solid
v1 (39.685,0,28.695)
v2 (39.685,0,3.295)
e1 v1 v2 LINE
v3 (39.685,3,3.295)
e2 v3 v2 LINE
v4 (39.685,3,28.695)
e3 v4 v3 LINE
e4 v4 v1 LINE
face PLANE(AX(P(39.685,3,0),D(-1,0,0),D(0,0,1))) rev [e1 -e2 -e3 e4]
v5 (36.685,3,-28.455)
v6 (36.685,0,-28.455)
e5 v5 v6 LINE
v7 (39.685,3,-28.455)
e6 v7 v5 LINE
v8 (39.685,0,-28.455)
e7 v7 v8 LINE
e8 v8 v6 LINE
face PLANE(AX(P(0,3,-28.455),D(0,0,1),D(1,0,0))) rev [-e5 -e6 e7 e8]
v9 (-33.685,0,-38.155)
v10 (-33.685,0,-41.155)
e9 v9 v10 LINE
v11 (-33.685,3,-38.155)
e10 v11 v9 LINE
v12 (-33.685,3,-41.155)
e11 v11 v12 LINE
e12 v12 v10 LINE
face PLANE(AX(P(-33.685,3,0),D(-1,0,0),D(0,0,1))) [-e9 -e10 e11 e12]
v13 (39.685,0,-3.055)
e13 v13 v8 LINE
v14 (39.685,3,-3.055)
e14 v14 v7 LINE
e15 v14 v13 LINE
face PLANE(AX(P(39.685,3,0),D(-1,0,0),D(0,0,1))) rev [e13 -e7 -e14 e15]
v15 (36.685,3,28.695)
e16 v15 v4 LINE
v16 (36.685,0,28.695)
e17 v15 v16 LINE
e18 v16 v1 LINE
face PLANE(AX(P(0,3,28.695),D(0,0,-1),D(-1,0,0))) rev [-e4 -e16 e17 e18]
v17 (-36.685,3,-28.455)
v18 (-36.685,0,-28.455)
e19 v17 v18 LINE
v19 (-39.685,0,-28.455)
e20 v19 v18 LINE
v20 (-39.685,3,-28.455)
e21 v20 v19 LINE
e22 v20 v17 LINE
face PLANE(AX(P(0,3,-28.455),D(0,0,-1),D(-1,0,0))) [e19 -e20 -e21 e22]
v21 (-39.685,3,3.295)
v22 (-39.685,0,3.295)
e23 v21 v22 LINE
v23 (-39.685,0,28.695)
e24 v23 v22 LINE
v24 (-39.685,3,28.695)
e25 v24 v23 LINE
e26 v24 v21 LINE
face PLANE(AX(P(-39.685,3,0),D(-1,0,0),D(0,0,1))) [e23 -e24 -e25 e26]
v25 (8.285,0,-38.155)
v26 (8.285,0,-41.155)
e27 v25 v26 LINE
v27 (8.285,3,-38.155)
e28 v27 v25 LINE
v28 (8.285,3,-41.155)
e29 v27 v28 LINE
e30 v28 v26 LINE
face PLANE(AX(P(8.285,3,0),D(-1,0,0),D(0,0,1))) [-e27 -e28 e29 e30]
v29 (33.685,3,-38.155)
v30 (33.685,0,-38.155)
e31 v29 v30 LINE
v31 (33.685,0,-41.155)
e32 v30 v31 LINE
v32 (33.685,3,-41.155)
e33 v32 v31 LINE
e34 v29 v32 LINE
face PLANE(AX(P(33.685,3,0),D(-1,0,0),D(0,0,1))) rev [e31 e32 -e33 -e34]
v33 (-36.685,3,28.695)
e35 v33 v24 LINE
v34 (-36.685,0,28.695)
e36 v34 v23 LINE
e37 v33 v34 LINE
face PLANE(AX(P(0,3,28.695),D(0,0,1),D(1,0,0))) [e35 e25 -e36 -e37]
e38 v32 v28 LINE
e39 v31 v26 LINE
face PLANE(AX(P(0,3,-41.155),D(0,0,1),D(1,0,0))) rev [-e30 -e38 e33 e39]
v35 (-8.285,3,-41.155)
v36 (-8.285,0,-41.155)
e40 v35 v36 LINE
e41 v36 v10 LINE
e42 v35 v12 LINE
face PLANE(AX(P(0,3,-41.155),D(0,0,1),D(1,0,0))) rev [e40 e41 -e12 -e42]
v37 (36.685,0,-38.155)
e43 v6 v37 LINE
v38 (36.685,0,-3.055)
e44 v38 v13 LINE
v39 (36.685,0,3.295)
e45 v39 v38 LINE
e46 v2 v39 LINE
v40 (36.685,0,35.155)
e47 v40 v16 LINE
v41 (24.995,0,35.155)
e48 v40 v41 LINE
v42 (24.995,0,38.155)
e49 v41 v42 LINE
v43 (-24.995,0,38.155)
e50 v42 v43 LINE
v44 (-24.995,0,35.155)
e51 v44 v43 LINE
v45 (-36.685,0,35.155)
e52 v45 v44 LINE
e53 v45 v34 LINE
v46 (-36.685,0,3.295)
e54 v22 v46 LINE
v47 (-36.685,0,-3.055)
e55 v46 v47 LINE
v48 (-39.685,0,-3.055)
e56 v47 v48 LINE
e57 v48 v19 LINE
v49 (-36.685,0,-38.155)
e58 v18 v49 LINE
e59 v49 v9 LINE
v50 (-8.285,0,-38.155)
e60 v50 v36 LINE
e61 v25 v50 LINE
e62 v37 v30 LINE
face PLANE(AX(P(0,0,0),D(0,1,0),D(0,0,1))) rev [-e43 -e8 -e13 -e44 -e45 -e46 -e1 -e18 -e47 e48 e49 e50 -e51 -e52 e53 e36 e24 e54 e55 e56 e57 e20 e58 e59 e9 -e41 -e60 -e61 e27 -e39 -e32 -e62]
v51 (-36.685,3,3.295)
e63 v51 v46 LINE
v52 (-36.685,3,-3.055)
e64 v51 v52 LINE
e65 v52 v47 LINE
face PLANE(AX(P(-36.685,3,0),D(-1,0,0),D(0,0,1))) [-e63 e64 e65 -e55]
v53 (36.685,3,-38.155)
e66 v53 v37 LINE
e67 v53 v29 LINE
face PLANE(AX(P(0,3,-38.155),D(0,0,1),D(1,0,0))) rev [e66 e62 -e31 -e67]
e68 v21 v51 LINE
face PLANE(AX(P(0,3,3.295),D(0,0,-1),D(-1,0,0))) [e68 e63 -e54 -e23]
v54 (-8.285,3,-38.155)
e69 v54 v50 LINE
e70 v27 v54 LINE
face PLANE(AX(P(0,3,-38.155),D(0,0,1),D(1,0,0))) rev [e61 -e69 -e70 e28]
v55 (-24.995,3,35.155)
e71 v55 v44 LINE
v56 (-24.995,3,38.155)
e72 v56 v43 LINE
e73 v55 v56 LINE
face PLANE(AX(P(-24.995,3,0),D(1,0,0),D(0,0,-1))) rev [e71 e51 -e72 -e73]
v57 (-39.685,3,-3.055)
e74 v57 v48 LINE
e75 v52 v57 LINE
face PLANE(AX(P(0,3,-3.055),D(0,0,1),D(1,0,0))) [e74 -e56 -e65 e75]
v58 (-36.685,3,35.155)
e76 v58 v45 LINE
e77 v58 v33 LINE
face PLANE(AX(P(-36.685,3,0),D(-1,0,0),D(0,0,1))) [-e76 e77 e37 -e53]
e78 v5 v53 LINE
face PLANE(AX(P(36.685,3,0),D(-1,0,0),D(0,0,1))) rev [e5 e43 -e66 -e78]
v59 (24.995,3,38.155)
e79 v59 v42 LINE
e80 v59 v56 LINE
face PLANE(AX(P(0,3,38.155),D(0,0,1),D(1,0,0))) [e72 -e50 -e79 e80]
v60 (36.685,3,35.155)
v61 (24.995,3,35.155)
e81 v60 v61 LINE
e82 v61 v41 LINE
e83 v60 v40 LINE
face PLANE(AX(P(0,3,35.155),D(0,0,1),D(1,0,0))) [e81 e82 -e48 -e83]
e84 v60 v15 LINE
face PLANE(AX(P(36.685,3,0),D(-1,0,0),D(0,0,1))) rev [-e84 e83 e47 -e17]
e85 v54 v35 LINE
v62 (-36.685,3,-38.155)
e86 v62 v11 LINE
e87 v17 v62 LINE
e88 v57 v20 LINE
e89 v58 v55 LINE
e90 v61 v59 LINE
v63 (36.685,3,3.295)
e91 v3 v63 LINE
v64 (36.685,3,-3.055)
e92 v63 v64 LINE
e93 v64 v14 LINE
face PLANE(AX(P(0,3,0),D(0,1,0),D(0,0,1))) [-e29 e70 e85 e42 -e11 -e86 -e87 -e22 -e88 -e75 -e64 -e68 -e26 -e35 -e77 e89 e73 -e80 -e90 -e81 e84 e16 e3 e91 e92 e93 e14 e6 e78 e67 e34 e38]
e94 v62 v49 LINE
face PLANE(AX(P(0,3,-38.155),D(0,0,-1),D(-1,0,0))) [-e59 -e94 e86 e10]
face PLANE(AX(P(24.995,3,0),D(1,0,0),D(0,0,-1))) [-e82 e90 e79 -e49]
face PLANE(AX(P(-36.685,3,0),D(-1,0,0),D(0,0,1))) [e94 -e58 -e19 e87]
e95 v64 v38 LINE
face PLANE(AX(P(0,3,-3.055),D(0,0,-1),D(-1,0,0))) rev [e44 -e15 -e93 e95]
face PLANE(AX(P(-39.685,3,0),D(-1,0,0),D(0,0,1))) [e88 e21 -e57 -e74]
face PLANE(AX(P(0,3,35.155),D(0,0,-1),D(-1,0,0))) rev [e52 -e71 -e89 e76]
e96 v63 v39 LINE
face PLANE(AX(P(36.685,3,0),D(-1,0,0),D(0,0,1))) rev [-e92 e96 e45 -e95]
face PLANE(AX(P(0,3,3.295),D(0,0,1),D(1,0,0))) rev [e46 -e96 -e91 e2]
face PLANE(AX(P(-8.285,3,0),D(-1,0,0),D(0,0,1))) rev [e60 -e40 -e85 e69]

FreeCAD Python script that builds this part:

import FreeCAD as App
import Part
import Sketcher

V = App.Vector

doc = App.newDocument("Part")
body = doc.addObject("PartDesign::Body", "Body")

sketch1 = body.newObject("Sketcher::SketchObject", "Sketch")
sketch1.AttachmentSupport = (doc.getObject("XZ_Plane"), [""])
sketch1.MapMode = "FlatFace"
sketch1.addGeometry(Part.LineSegment(V(-25, 38.2, 0), V(25, 38.2, 0)), False)
sketch1.addGeometry(Part.LineSegment(V(25, 38.2, 0), V(25, 35.2, 0)), False)
sketch1.addGeometry(Part.LineSegment(V(25, 35.2, 0), V(36.7, 35.2, 0)), False)
sketch1.addGeometry(Part.LineSegment(V(36.7, 35.2, 0), V(36.7, 28.7, 0)), False)
sketch1.addGeometry(Part.LineSegment(V(36.7, 28.7, 0), V(39.7, 28.7, 0)), False)
sketch1.addGeometry(Part.LineSegment(V(39.7, 28.7, 0), V(39.7, 3.3, 0)), False)
sketch1.addGeometry(Part.LineSegment(V(39.7, 3.3, 0), V(36.7, 3.3, 0)), False)
sketch1.addGeometry(Part.LineSegment(V(36.7, 3.3, 0), V(36.7, -3.1, 0)), False)
sketch1.addGeometry(Part.LineSegment(V(36.7, -3.1, 0), V(39.7, -3.1, 0)), False)
sketch1.addGeometry(Part.LineSegment(V(39.7, -3.1, 0), V(39.7, -28.5, 0)), False)
sketch1.addGeometry(Part.LineSegment(V(39.7, -28.5, 0), V(36.7, -28.5, 0)), False)
sketch1.addGeometry(Part.LineSegment(V(36.7, -28.5, 0), V(36.7, -38.2, 0)), False)
sketch1.addGeometry(Part.LineSegment(V(36.7, -38.2, 0), V(33.7, -38.2, 0)), False)
sketch1.addGeometry(Part.LineSegment(V(33.7, -38.2, 0), V(33.7, -41.2, 0)), False)
sketch1.addGeometry(Part.LineSegment(V(33.7, -41.2, 0), V(8.3, -41.2, 0)), False)
sketch1.addGeometry(Part.LineSegment(V(8.3, -41.2, 0), V(8.3, -38.2, 0)), False)
sketch1.addGeometry(Part.LineSegment(V(8.3, -38.2, 0), V(-8.3, -38.2, 0)), False)
sketch1.addGeometry(Part.LineSegment(V(-8.3, -38.2, 0), V(-8.3, -41.2, 0)), False)
sketch1.addGeometry(Part.LineSegment(V(-8.3, -41.2, 0), V(-33.7, -41.2, 0)), False)
sketch1.addGeometry(Part.LineSegment(V(-33.7, -41.2, 0), V(-33.7, -38.2, 0)), False)
sketch1.addGeometry(Part.LineSegment(V(-33.7, -38.2, 0), V(-36.7, -38.2, 0)), False)
sketch1.addGeometry(Part.LineSegment(V(-36.7, -38.2, 0), V(-36.7, -28.5, 0)), False)
sketch1.addGeometry(Part.LineSegment(V(-36.7, -28.5, 0), V(-39.7, -28.5, 0)), False)
sketch1.addGeometry(Part.LineSegment(V(-39.7, -28.5, 0), V(-39.7, -3.1, 0)), False)
sketch1.addGeometry(Part.LineSegment(V(-39.7, -3.1, 0), V(-36.7, -3.1, 0)), False)
sketch1.addGeometry(Part.LineSegment(V(-36.7, -3.1, 0), V(-36.7, 3.3, 0)), False)
sketch1.addGeometry(Part.LineSegment(V(-36.7, 3.3, 0), V(-39.7, 3.3, 0)), False)
sketch1.addGeometry(Part.LineSegment(V(-39.7, 3.3, 0), V(-39.7, 28.7, 0)), False)
sketch1.addGeometry(Part.LineSegment(V(-39.7, 28.7, 0), V(-36.7, 28.7, 0)), False)
sketch1.addGeometry(Part.LineSegment(V(-36.7, 28.7, 0), V(-36.7, 35.2, 0)), False)
sketch1.addGeometry(Part.LineSegment(V(-36.7, 35.2, 0), V(-25, 35.2, 0)), False)
sketch1.addGeometry(Part.LineSegment(V(-25, 35.2, 0), V(-25, 38.2, 0)), False)
sketch1.addConstraint(Sketcher.Constraint("Coincident", 0, 2, 1, 1))
sketch1.addConstraint(Sketcher.Constraint("Coincident", 1, 2, 2, 1))
sketch1.addConstraint(Sketcher.Constraint("Coincident", 2, 2, 3, 1))
sketch1.addConstraint(Sketcher.Constraint("Coincident", 3, 2, 4, 1))
sketch1.addConstraint(Sketcher.Constraint("Coincident", 4, 2, 5, 1))
sketch1.addConstraint(Sketcher.Constraint("Coincident", 5, 2, 6, 1))
sketch1.addConstraint(Sketcher.Constraint("Coincident", 6, 2, 7, 1))
sketch1.addConstraint(Sketcher.Constraint("Coincident", 7, 2, 8, 1))
sketch1.addConstraint(Sketcher.Constraint("Coincident", 8, 2, 9, 1))
sketch1.addConstraint(Sketcher.Constraint("Coincident", 9, 2, 10, 1))
sketch1.addConstraint(Sketcher.Constraint("Coincident", 10, 2, 11, 1))
sketch1.addConstraint(Sketcher.Constraint("Coincident", 11, 2, 12, 1))
sketch1.addConstraint(Sketcher.Constraint("Coincident", 12, 2, 13, 1))
sketch1.addConstraint(Sketcher.Constraint("Coincident", 13, 2, 14, 1))
sketch1.addConstraint(Sketcher.Constraint("Coincident", 14, 2, 15, 1))
sketch1.addConstraint(Sketcher.Constraint("Coincident", 15, 2, 16, 1))
sketch1.addConstraint(Sketcher.Constraint("Coincident", 16, 2, 17, 1))
sketch1.addConstraint(Sketcher.Constraint("Coincident", 17, 2, 18, 1))
sketch1.addConstraint(Sketcher.Constraint("Coincident", 18, 2, 19, 1))
sketch1.addConstraint(Sketcher.Constraint("Coincident", 19, 2, 20, 1))
sketch1.addConstraint(Sketcher.Constraint("Coincident", 20, 2, 21, 1))
sketch1.addConstraint(Sketcher.Constraint("Coincident", 21, 2, 22, 1))
sketch1.addConstraint(Sketcher.Constraint("Coincident", 22, 2, 23, 1))
sketch1.addConstraint(Sketcher.Constraint("Coincident", 23, 2, 24, 1))
sketch1.addConstraint(Sketcher.Constraint("Coincident", 24, 2, 25, 1))
sketch1.addConstraint(Sketcher.Constraint("Coincident", 25, 2, 26, 1))
sketch1.addConstraint(Sketcher.Constraint("Coincident", 26, 2, 27, 1))
sketch1.addConstraint(Sketcher.Constraint("Coincident", 27, 2, 28, 1))
sketch1.addConstraint(Sketcher.Constraint("Coincident", 28, 2, 29, 1))
sketch1.addConstraint(Sketcher.Constraint("Coincident", 29, 2, 30, 1))
sketch1.addConstraint(Sketcher.Constraint("Coincident", 30, 2, 31, 1))
sketch1.addConstraint(Sketcher.Constraint("Coincident", 31, 2, 0, 1))
sketch1.addConstraint(Sketcher.Constraint("Horizontal", 0))
sketch1.addConstraint(Sketcher.Constraint("Vertical", 1))
sketch1.addConstraint(Sketcher.Constraint("Horizontal", 2))
sketch1.addConstraint(Sketcher.Constraint("Vertical", 3))
sketch1.addConstraint(Sketcher.Constraint("Horizontal", 4))
sketch1.addConstraint(Sketcher.Constraint("Vertical", 5))
sketch1.addConstraint(Sketcher.Constraint("Horizontal", 6))
sketch1.addConstraint(Sketcher.Constraint("Vertical", 7))
sketch1.addConstraint(Sketcher.Constraint("Horizontal", 8))
sketch1.addConstraint(Sketcher.Constraint("Vertical", 9))
sketch1.addConstraint(Sketcher.Constraint("Horizontal", 10))
sketch1.addConstraint(Sketcher.Constraint("Vertical", 11))
sketch1.addConstraint(Sketcher.Constraint("Horizontal", 12))
sketch1.addConstraint(Sketcher.Constraint("Vertical", 13))
sketch1.addConstraint(Sketcher.Constraint("Horizontal", 14))
sketch1.addConstraint(Sketcher.Constraint("Vertical", 15))
sketch1.addConstraint(Sketcher.Constraint("Horizontal", 16))
sketch1.addConstraint(Sketcher.Constraint("Vertical", 17))
sketch1.addConstraint(Sketcher.Constraint("Horizontal", 18))
sketch1.addConstraint(Sketcher.Constraint("Vertical", 19))
sketch1.addConstraint(Sketcher.Constraint("Horizontal", 20))
sketch1.addConstraint(Sketcher.Constraint("Vertical", 21))
sketch1.addConstraint(Sketcher.Constraint("Horizontal", 22))
sketch1.addConstraint(Sketcher.Constraint("Vertical", 23))
sketch1.addConstraint(Sketcher.Constraint("Horizontal", 24))
sketch1.addConstraint(Sketcher.Constraint("Vertical", 25))
sketch1.addConstraint(Sketcher.Constraint("Horizontal", 26))
sketch1.addConstraint(Sketcher.Constraint("Vertical", 27))
sketch1.addConstraint(Sketcher.Constraint("Horizontal", 28))
sketch1.addConstraint(Sketcher.Constraint("Vertical", 29))
sketch1.addConstraint(Sketcher.Constraint("Horizontal", 30))
sketch1.addConstraint(Sketcher.Constraint("Vertical", 31))
sketch1.addConstraint(Sketcher.Constraint("Symmetric", 14, 2, 17, 2, -2))
sketch1.addConstraint(Sketcher.Constraint("Symmetric", 12, 2, 19, 2, -2))
sketch1.addConstraint(Sketcher.Constraint("Symmetric", 10, 2, 21, 2, -2))
sketch1.addConstraint(Sketcher.Constraint("Symmetric", 8, 2, 23, 2, -2))
sketch1.addConstraint(Sketcher.Constraint("Symmetric", 6, 2, 25, 2, -2))
sketch1.addConstraint(Sketcher.Constraint("Symmetric", 4, 2, 27, 2, -2))
sketch1.addConstraint(Sketcher.Constraint("Symmetric", 2, 2, 29, 2, -2))
sketch1.addConstraint(Sketcher.Constraint("Horizontal", 12, 2, 15, 2))
sketch1.addConstraint(Sketcher.Constraint("Vertical", 3, 2, 6, 2))
sketch1.addConstraint(Sketcher.Constraint("Vertical", 5, 2, 8, 2))
sketch1.addConstraint(Sketcher.Constraint("Vertical", 7, 2, 10, 2))
sketch1.addConstraint(Sketcher.Constraint("Equal", 10, 12))
sketch1.addConstraint(Sketcher.Constraint("Equal", 2, 30))
sketch1.addConstraint(Sketcher.Constraint("Equal", 28, 1))
sketch1.addConstraint(Sketcher.Constraint("Equal", 18, 5))
sketch1.addConstraint(Sketcher.Constraint("Equal", 5, 9))
sketch1.addConstraint(Sketcher.Constraint("Equal", 1, 13))
sketch1.addConstraint(Sketcher.Constraint("DistanceX", 4, 1, 4, 2, 3.0))
sketch1.addConstraint(Sketcher.Constraint("DistanceX", 14, 2, 14, 1, 25.4))
sketch1.addConstraint(Sketcher.Constraint("DistanceY", 11, 2, 11, 1, 9.7))
sketch1.addConstraint(Sketcher.Constraint("DistanceX", 0, 1, 0, 2, 49.99))
sketch1.addConstraint(Sketcher.Constraint("DistanceX", 2, 1, 2, 2, 11.69))
sketch1.addConstraint(Sketcher.Constraint("DistanceY", 3, 2, 3, 1, 6.46))
sketch1.addConstraint(Sketcher.Constraint("DistanceY", 7, 2, 7, 1, 6.35))
sketch1.addConstraint(Sketcher.Constraint("DistanceY", -1, 1, 0, 2, 38.155))
pad1 = body.newObject("PartDesign::Pad", "Pad")
pad1.Profile = sketch1
pad1.Length = 3
pad1.Reversed = True

doc.recompute()
